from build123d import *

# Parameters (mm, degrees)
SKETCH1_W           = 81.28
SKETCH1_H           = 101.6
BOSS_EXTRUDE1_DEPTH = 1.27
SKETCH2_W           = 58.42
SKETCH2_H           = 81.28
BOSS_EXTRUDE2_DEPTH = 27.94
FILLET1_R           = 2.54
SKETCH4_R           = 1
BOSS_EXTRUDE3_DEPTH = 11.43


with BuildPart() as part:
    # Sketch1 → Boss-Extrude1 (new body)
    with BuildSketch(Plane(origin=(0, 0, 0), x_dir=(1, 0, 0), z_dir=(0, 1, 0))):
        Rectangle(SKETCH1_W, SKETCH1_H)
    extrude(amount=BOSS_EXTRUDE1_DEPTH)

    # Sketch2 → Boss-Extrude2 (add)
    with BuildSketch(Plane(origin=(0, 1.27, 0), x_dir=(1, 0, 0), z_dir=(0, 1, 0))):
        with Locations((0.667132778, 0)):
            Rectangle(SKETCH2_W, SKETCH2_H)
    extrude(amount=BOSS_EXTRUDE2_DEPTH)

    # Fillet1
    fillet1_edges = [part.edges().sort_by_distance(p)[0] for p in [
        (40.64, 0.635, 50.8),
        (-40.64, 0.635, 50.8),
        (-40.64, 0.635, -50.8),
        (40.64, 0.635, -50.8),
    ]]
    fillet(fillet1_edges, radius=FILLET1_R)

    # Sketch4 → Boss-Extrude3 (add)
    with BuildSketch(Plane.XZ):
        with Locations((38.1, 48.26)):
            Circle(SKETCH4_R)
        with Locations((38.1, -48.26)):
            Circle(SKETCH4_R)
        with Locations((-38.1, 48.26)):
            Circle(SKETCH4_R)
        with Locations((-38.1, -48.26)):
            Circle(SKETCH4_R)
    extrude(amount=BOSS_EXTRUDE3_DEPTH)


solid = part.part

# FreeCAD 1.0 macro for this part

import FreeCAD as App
import Part
import Sketcher

V = App.Vector
Q = App.Units.Quantity


def edges_at(feature, points):
    """Names of the edges that pass closest to the given points."""
    edges = feature.Shape.Edges
    near = lambda p: min(range(len(edges)), key=lambda i: edges[i].distToShape(Part.Vertex(*p))[0])
    return sorted({f"Edge{near(p) + 1}" for p in points})

doc = App.newDocument("Part")
body = doc.addObject("PartDesign::Body", "Body")

sketch1 = body.newObject("Sketcher::SketchObject", "Sketch")
sketch1.AttachmentSupport = (doc.getObject("XZ_Plane"), [""])
sketch1.MapMode = "FlatFace"
sketch1.addGeometry(Part.LineSegment(V(-41, -51, 0), V(-41, 51, 0)), False)
sketch1.addGeometry(Part.LineSegment(V(-41, 51, 0), V(41, 51, 0)), False)
sketch1.addGeometry(Part.LineSegment(V(41, 51, 0), V(41, -51, 0)), False)
sketch1.addGeometry(Part.LineSegment(V(41, -51, 0), V(-41, -51, 0)), False)
sketch1.addConstraint(Sketcher.Constraint("Coincident", 0, 2, 1, 1))
sketch1.addConstraint(Sketcher.Constraint("Coincident", 1, 2, 2, 1))
sketch1.addConstraint(Sketcher.Constraint("Coincident", 2, 2, 3, 1))
sketch1.addConstraint(Sketcher.Constraint("Coincident", 3, 2, 0, 1))
sketch1.addConstraint(Sketcher.Constraint("Vertical", 0))
sketch1.addConstraint(Sketcher.Constraint("Horizontal", 1))
sketch1.addConstraint(Sketcher.Constraint("Vertical", 2))
sketch1.addConstraint(Sketcher.Constraint("Horizontal", 3))
sketch1.addConstraint(Sketcher.Constraint("Symmetric", 0, 2, 2, 2, -1, 1))
sketch1.addConstraint(Sketcher.Constraint("DistanceY", 0, 1, 0, 2, Q("4 in")))
sketch1.addConstraint(Sketcher.Constraint("DistanceX", 1, 1, 1, 2, Q("3.2 in")))
pad1 = body.newObject("PartDesign::Pad", "Pad")
pad1.Profile = sketch1
pad1.Length = Q("0.05 in")
pad1.Reversed = True

sketch2 = body.newObject("Sketcher::SketchObject", "Sketch001")
sketch2.AttachmentSupport = (doc.getObject("XZ_Plane"), [""])
sketch2.MapMode = "FlatFace"
sketch2.AttachmentOffset = App.Placement(V(0, 0, -0.05 * 25.4), App.Rotation())
sketch2.addGeometry(Part.LineSegment(V(-29, -41, 0), V(-29, 41, 0)), False)
sketch2.addGeometry(Part.LineSegment(V(-29, 41, 0), V(30, 41, 0)), False)
sketch2.addGeometry(Part.LineSegment(V(30, 41, 0), V(30, -41, 0)), False)
sketch2.addGeometry(Part.LineSegment(V(30, -41, 0), V(-29, -41, 0)), False)
sketch2.addConstraint(Sketcher.Constraint("Coincident", 0, 2, 1, 1))
sketch2.addConstraint(Sketcher.Constraint("Coincident", 1, 2, 2, 1))
sketch2.addConstraint(Sketcher.Constraint("Coincident", 2, 2, 3, 1))
sketch2.addConstraint(Sketcher.Constraint("Coincident", 3, 2, 0, 1))
sketch2.addConstraint(Sketcher.Constraint("Vertical", 0))
sketch2.addConstraint(Sketcher.Constraint("Horizontal", 1))
sketch2.addConstraint(Sketcher.Constraint("Vertical", 2))
sketch2.addConstraint(Sketcher.Constraint("Horizontal", 3))
sketch2.addConstraint(Sketcher.Constraint("DistanceX", 1, 1, 1, 2, Q("2.3 in")))
sketch2.addConstraint(Sketcher.Constraint("DistanceY", 0, 1, 0, 2, Q("3.2 in")))
sketch2.addConstraint(Sketcher.Constraint("DistanceY", -1, 1, 0, 2, Q("1.6 in")))
sketch2.addConstraint(Sketcher.Constraint("DistanceX", 0, 2, -1, 1, 28.542867))
pad2 = body.newObject("PartDesign::Pad", "Pad001")
pad2.Profile = sketch2
pad2.Length = Q("1.1 in")
pad2.Reversed = True
doc.recompute()

fillet = body.newObject("PartDesign::Fillet", "Fillet")
fillet.Base = (pad2, edges_at(pad2, [
    (40.64, 0.635, 50.8),
    (-40.64, 0.635, 50.8),
    (-40.64, 0.635, -50.8),
    (40.64, 0.635, -50.8),
]))
fillet.Radius = Q("0.1 in")

sketch3 = body.newObject("Sketcher::SketchObject", "Sketch002")
sketch3.AttachmentSupport = (doc.getObject("XZ_Plane"), [""])
sketch3.MapMode = "FlatFace"
sketch3.addGeometry(Part.Circle(V(38.1, 48.3, 0), V(0, 0, 1), 1), False)
sketch3.addGeometry(Part.Circle(V(38.1, -48.3, 0), V(0, 0, 1), 1), False)
sketch3.addGeometry(Part.Circle(V(-38.1, 48.3, 0), V(0, 0, 1), 1), False)
sketch3.addGeometry(Part.Circle(V(-38.1, -48.3, 0), V(0, 0, 1), 1), False)
sketch3.addConstraint(Sketcher.Constraint("Equal", 0, 1))
sketch3.addConstraint(Sketcher.Constraint("Equal", 1, 2))
sketch3.addConstraint(Sketcher.Constraint("Equal", 2, 3))
sketch3.addConstraint(Sketcher.Constraint("Symmetric", 1, 3, 2, 3, -1, 1))
sketch3.addConstraint(Sketcher.Constraint("Symmetric", 0, 3, 3, 3, -1, 1))
sketch3.addConstraint(Sketcher.Constraint("Symmetric", 0, 3, 2, 3, -2))
sketch3.addConstraint(Sketcher.Constraint("DistanceX", 2, 3, 0, 3, Q("3 in")))
sketch3.addConstraint(Sketcher.Constraint("DistanceY", -1, 1, 0, 3, Q("1.9 in")))
sketch3.addConstraint(Sketcher.Constraint("Diameter", 0, 2.0))
pad3 = body.newObject("PartDesign::Pad", "Pad002")
pad3.Profile = sketch3
pad3.Length = Q("0.45 in")

doc.recompute()
